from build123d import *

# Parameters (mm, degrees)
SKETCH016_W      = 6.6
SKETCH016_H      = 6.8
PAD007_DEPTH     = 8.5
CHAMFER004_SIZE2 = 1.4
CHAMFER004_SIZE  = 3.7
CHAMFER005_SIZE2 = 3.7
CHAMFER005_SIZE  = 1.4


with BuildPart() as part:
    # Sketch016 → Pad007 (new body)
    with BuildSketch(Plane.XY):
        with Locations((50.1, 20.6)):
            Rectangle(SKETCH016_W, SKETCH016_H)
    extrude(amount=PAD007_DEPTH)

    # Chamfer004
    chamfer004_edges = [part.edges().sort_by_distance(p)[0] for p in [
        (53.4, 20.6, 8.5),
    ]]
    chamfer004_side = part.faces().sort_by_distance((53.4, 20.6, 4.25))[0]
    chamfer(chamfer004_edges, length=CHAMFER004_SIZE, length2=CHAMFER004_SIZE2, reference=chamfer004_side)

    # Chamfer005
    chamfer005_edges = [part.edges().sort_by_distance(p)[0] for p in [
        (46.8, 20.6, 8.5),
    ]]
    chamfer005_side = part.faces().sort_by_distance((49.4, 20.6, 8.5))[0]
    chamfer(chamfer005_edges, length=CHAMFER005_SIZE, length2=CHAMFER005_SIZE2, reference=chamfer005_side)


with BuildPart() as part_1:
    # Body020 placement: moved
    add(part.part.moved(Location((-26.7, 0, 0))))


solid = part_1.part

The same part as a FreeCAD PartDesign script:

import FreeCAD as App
import Part
import Sketcher

V = App.Vector


def edges_at(feature, points):
    """Names of the edges that pass closest to the given points."""
    edges = feature.Shape.Edges
    near = lambda p: min(range(len(edges)), key=lambda i: edges[i].distToShape(Part.Vertex(*p))[0])
    return sorted({f"Edge{near(p) + 1}" for p in points})

doc = App.newDocument("Part")
body = doc.addObject("PartDesign::Body", "Body")

sketch1 = body.newObject("Sketcher::SketchObject", "Sketch")
sketch1.AttachmentSupport = (doc.getObject("XY_Plane"), [""])
sketch1.MapMode = "FlatFace"
sketch1.addGeometry(Part.LineSegment(V(46.8, 24, 0), V(46.8, 17.2, 0)), False)
sketch1.addGeometry(Part.LineSegment(V(46.8, 17.2, 0), V(53.4, 17.2, 0)), False)
sketch1.addGeometry(Part.LineSegment(V(53.4, 17.2, 0), V(53.4, 24, 0)), False)
sketch1.addGeometry(Part.LineSegment(V(53.4, 24, 0), V(46.8, 24, 0)), False)
sketch1.addConstraint(Sketcher.Constraint("Coincident", 0, 2, 1, 1))
sketch1.addConstraint(Sketcher.Constraint("Coincident", 1, 2, 2, 1))
sketch1.addConstraint(Sketcher.Constraint("Coincident", 2, 2, 3, 1))
sketch1.addConstraint(Sketcher.Constraint("Coincident", 3, 2, 0, 1))
sketch1.addConstraint(Sketcher.Constraint("Vertical", 0))
sketch1.addConstraint(Sketcher.Constraint("Horizontal", 1))
sketch1.addConstraint(Sketcher.Constraint("Vertical", 2))
sketch1.addConstraint(Sketcher.Constraint("Horizontal", 3))
sketch1.addConstraint(Sketcher.Constraint("DistanceX", 1, 1, 1, 2, 6.6))
sketch1.addConstraint(Sketcher.Constraint("DistanceY", 0, 2, 0, 1, 6.8))
sketch1.addConstraint(Sketcher.Constraint("DistanceY", -1, 1, 2, 2, 24.0))
sketch1.addConstraint(Sketcher.Constraint("DistanceX", -1, 1, 0, 2, 46.8))
pad1 = body.newObject("PartDesign::Pad", "Pad")
pad1.Profile = sketch1
pad1.Length = 8.5
doc.recompute()

chamfer = body.newObject("PartDesign::Chamfer", "Chamfer")
chamfer.Base = (pad1, edges_at(pad1, [(53.4, 20.6, 8.5)]))
chamfer.ChamferType = "Two distances"
chamfer.Size = 3.7
chamfer.Size2 = 1.4
doc.recompute()

chamfer2 = body.newObject("PartDesign::Chamfer", "Chamfer001")
chamfer2.Base = (chamfer, edges_at(chamfer, [(46.8, 20.6, 8.5)]))
chamfer2.ChamferType = "Two distances"
chamfer2.Size = 1.4
chamfer2.Size2 = 3.7
body2 = doc.addObject("PartDesign::Body", "Body001")
doc.recompute()

body.Placement = App.Placement(V(-26.7, 0, 0), App.Rotation(V(0, 0, 1), 0))
boolean = body2.newObject("PartDesign::Boolean", "Boolean")
boolean.Type = "Fuse"
boolean.addObjects([body])

doc.recompute()
